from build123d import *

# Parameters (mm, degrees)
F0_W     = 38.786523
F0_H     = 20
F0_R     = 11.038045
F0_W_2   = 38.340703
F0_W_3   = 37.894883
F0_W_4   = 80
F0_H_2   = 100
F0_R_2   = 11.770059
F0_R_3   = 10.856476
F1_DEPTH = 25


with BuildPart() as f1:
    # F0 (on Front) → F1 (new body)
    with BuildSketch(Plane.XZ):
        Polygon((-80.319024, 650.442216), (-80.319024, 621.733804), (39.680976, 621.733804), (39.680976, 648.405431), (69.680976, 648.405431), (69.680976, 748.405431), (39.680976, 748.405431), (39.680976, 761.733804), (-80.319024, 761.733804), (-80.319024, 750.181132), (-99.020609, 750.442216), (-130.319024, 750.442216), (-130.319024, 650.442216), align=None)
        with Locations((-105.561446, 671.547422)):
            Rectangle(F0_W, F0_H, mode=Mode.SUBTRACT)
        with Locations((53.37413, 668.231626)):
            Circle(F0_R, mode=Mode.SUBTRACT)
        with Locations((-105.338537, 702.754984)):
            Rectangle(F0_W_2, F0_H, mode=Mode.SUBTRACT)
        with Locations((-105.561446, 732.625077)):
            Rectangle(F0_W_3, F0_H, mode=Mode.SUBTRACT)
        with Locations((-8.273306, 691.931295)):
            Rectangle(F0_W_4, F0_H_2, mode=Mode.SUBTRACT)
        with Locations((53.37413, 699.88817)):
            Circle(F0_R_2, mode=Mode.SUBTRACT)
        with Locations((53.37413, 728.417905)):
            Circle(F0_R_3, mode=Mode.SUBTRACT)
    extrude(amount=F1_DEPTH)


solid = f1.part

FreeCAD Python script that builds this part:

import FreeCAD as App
import Part
import Sketcher
Q = App.Units.Quantity

doc = App.newDocument("Part")
body = doc.addObject("PartDesign::Body", "Body")

# Sketch on XZ plane
sketch1 = body.newObject("Sketcher::SketchObject", "Sketch")
sketch1.AttachmentSupport = (doc.getObject("XZ_Plane"), [""])
sketch1.MapMode = "FlatFace"
sketch1.addGeometry(Part.LineSegment(App.Vector(-80, 650, 0), App.Vector(-80, 622, 0)), False)
sketch1.addGeometry(Part.LineSegment(App.Vector(-80, 622, 0), App.Vector(40, 622, 0)), False)
sketch1.addGeometry(Part.LineSegment(App.Vector(40, 622, 0), App.Vector(40, 648, 0)), False)
sketch1.addGeometry(Part.LineSegment(App.Vector(40, 648, 0), App.Vector(70, 648, 0)), False)
sketch1.addGeometry(Part.LineSegment(App.Vector(70, 648, 0), App.Vector(70, 748, 0)), False)
sketch1.addGeometry(Part.LineSegment(App.Vector(70, 748, 0), App.Vector(40, 748, 0)), False)
sketch1.addGeometry(Part.LineSegment(App.Vector(40, 748, 0), App.Vector(40, 762, 0)), False)
sketch1.addGeometry(Part.LineSegment(App.Vector(40, 762, 0), App.Vector(-80, 762, 0)), False)
sketch1.addGeometry(Part.LineSegment(App.Vector(-80, 762, 0), App.Vector(-80, 750, 0)), False)
sketch1.addGeometry(Part.LineSegment(App.Vector(-80, 750, 0), App.Vector(-99, 750, 0)), False)
sketch1.addGeometry(Part.LineSegment(App.Vector(-99, 750, 0), App.Vector(-130, 750, 0)), False)
sketch1.addGeometry(Part.LineSegment(App.Vector(-130, 750, 0), App.Vector(-130, 650, 0)), False)
sketch1.addGeometry(Part.LineSegment(App.Vector(-130, 650, 0), App.Vector(-80, 650, 0)), False)
sketch1.addGeometry(Part.LineSegment(App.Vector(-86, 662, 0), App.Vector(-125, 662, 0)), False)
sketch1.addGeometry(Part.LineSegment(App.Vector(-125, 662, 0), App.Vector(-125, 682, 0)), False)
sketch1.addGeometry(Part.LineSegment(App.Vector(-125, 682, 0), App.Vector(-86, 682, 0)), False)
sketch1.addGeometry(Part.LineSegment(App.Vector(-86, 682, 0), App.Vector(-86, 662, 0)), False)
sketch1.addGeometry(Part.LineSegment(App.Vector(32, 642, 0), App.Vector(-48, 642, 0)), False)
sketch1.addGeometry(Part.LineSegment(App.Vector(-48, 642, 0), App.Vector(-48, 742, 0)), False)
sketch1.addGeometry(Part.LineSegment(App.Vector(-48, 742, 0), App.Vector(32, 742, 0)), False)
sketch1.addGeometry(Part.LineSegment(App.Vector(32, 742, 0), App.Vector(32, 642, 0)), False)
sketch1.addGeometry(Part.Circle(App.Vector(53, 668, 0), App.Vector(0, 0, 1), 11), False)
sketch1.addGeometry(Part.LineSegment(App.Vector(-86, 693, 0), App.Vector(-125, 693, 0)), False)
sketch1.addGeometry(Part.LineSegment(App.Vector(-125, 693, 0), App.Vector(-125, 713, 0)), False)
sketch1.addGeometry(Part.LineSegment(App.Vector(-125, 713, 0), App.Vector(-86, 713, 0)), False)
sketch1.addGeometry(Part.LineSegment(App.Vector(-86, 713, 0), App.Vector(-86, 693, 0)), False)
sketch1.addGeometry(Part.LineSegment(App.Vector(-87, 723, 0), App.Vector(-125, 723, 0)), False)
sketch1.addGeometry(Part.LineSegment(App.Vector(-125, 723, 0), App.Vector(-125, 743, 0)), False)
sketch1.addGeometry(Part.LineSegment(App.Vector(-125, 743, 0), App.Vector(-87, 743, 0)), False)
sketch1.addGeometry(Part.LineSegment(App.Vector(-87, 743, 0), App.Vector(-87, 723, 0)), False)
sketch1.addGeometry(Part.Circle(App.Vector(53, 700, 0), App.Vector(0, 0, 1), 12), False)
sketch1.addGeometry(Part.Circle(App.Vector(53, 728, 0), App.Vector(0, 0, 1), 11), False)
sketch1.addConstraint(Sketcher.Constraint("Coincident", 0, 2, 1, 1))
sketch1.addConstraint(Sketcher.Constraint("Coincident", 1, 2, 2, 1))
sketch1.addConstraint(Sketcher.Constraint("Coincident", 2, 2, 3, 1))
sketch1.addConstraint(Sketcher.Constraint("Coincident", 3, 2, 4, 1))
sketch1.addConstraint(Sketcher.Constraint("Coincident", 4, 2, 5, 1))
sketch1.addConstraint(Sketcher.Constraint("Coincident", 5, 2, 6, 1))
sketch1.addConstraint(Sketcher.Constraint("Coincident", 6, 2, 7, 1))
sketch1.addConstraint(Sketcher.Constraint("Coincident", 7, 2, 8, 1))
sketch1.addConstraint(Sketcher.Constraint("Coincident", 8, 2, 9, 1))
sketch1.addConstraint(Sketcher.Constraint("Coincident", 9, 2, 10, 1))
sketch1.addConstraint(Sketcher.Constraint("Coincident", 10, 2, 11, 1))
sketch1.addConstraint(Sketcher.Constraint("Coincident", 11, 2, 12, 1))
sketch1.addConstraint(Sketcher.Constraint("Coincident", 12, 2, 0, 1))
sketch1.addConstraint(Sketcher.Constraint("Coincident", 13, 2, 14, 1))
sketch1.addConstraint(Sketcher.Constraint("Coincident", 14, 2, 15, 1))
sketch1.addConstraint(Sketcher.Constraint("Coincident", 15, 2, 16, 1))
sketch1.addConstraint(Sketcher.Constraint("Coincident", 16, 2, 13, 1))
sketch1.addConstraint(Sketcher.Constraint("Coincident", 17, 2, 18, 1))
sketch1.addConstraint(Sketcher.Constraint("Coincident", 18, 2, 19, 1))
sketch1.addConstraint(Sketcher.Constraint("Coincident", 19, 2, 20, 1))
sketch1.addConstraint(Sketcher.Constraint("Coincident", 20, 2, 17, 1))
sketch1.addConstraint(Sketcher.Constraint("Coincident", 22, 2, 23, 1))
sketch1.addConstraint(Sketcher.Constraint("Coincident", 23, 2, 24, 1))
sketch1.addConstraint(Sketcher.Constraint("Coincident", 24, 2, 25, 1))
sketch1.addConstraint(Sketcher.Constraint("Coincident", 25, 2, 22, 1))
sketch1.addConstraint(Sketcher.Constraint("Coincident", 26, 2, 27, 1))
sketch1.addConstraint(Sketcher.Constraint("Coincident", 27, 2, 28, 1))
sketch1.addConstraint(Sketcher.Constraint("Coincident", 28, 2, 29, 1))
sketch1.addConstraint(Sketcher.Constraint("Coincident", 29, 2, 26, 1))
sketch1.addConstraint(Sketcher.Constraint("Vertical", 0))
sketch1.addConstraint(Sketcher.Constraint("Horizontal", 1))
sketch1.addConstraint(Sketcher.Constraint("Vertical", 2))
sketch1.addConstraint(Sketcher.Constraint("Horizontal", 3))
sketch1.addConstraint(Sketcher.Constraint("Vertical", 4))
sketch1.addConstraint(Sketcher.Constraint("Horizontal", 5))
sketch1.addConstraint(Sketcher.Constraint("Vertical", 6))
sketch1.addConstraint(Sketcher.Constraint("Horizontal", 7))
sketch1.addConstraint(Sketcher.Constraint("Vertical", 8))
sketch1.addConstraint(Sketcher.Constraint("Horizontal", 10))
sketch1.addConstraint(Sketcher.Constraint("Vertical", 11))
sketch1.addConstraint(Sketcher.Constraint("Horizontal", 12))
sketch1.addConstraint(Sketcher.Constraint("Horizontal", 13))
sketch1.addConstraint(Sketcher.Constraint("Vertical", 14))
sketch1.addConstraint(Sketcher.Constraint("Horizontal", 15))
sketch1.addConstraint(Sketcher.Constraint("Vertical", 16))
sketch1.addConstraint(Sketcher.Constraint("Horizontal", 17))
sketch1.addConstraint(Sketcher.Constraint("Vertical", 18))
sketch1.addConstraint(Sketcher.Constraint("Horizontal", 19))
sketch1.addConstraint(Sketcher.Constraint("Vertical", 20))
sketch1.addConstraint(Sketcher.Constraint("Horizontal", 22))
sketch1.addConstraint(Sketcher.Constraint("Vertical", 23))
sketch1.addConstraint(Sketcher.Constraint("Horizontal", 24))
sketch1.addConstraint(Sketcher.Constraint("Vertical", 25))
sketch1.addConstraint(Sketcher.Constraint("Horizontal", 26))
sketch1.addConstraint(Sketcher.Constraint("Vertical", 27))
sketch1.addConstraint(Sketcher.Constraint("Horizontal", 28))
sketch1.addConstraint(Sketcher.Constraint("Vertical", 29))
sketch1.addConstraint(Sketcher.Constraint("Vertical", 21, 3, 30, 3))
sketch1.addConstraint(Sketcher.Constraint("Vertical", 30, 3, 31, 3))
sketch1.addConstraint(Sketcher.Constraint("Vertical", 2, 2, 5, 2))
sketch1.addConstraint(Sketcher.Constraint("Vertical", 0, 2, 7, 2))
sketch1.addConstraint(Sketcher.Constraint("Vertical", 16, 2, 24, 2))
sketch1.addConstraint(Sketcher.Constraint("Vertical", 23, 2, 26, 2))
sketch1.addConstraint(Sketcher.Constraint("Equal", 4, 11))
sketch1.addConstraint(Sketcher.Constraint("Equal", 11, 18))
sketch1.addConstraint(Sketcher.Constraint("Equal", 16, 23))
sketch1.addConstraint(Sketcher.Constraint("Equal", 25, 27))
sketch1.addConstraint(Sketcher.Constraint("DistanceX", 1, 1, 1, 2, Q("120 mm")))
sketch1.addConstraint(Sketcher.Constraint("DistanceX", 3, 1, 3, 2, Q("30 mm")))
sketch1.addConstraint(Sketcher.Constraint("DistanceX", 12, 1, 12, 2, Q("50 mm")))
sketch1.addConstraint(Sketcher.Constraint("DistanceX", 17, 2, 17, 1, Q("80 mm")))
sketch1.addConstraint(Sketcher.Constraint("DistanceY", 4, 1, 4, 2, Q("100 mm")))
sketch1.addConstraint(Sketcher.Constraint("DistanceY", 14, 1, 14, 2, Q("20 mm")))
sketch1.addConstraint(Sketcher.Constraint("DistanceY", 0, 2, 7, 2, Q("140 mm")))
sketch1.addConstraint(Sketcher.Constraint("Diameter", 21, Q("22.07609 mm")))
sketch1.addConstraint(Sketcher.Constraint("Diameter", 30, Q("23.540118 mm")))
sketch1.addConstraint(Sketcher.Constraint("Diameter", 31, Q("21.712952 mm")))
sketch1.addConstraint(Sketcher.Constraint("DistanceY", 8, 2, 8, 1, Q("11.552672 mm")))
sketch1.addConstraint(Sketcher.Constraint("DistanceY", 0, 2, 31, 3, Q("106.684101 mm")))
sketch1.addConstraint(Sketcher.Constraint("DistanceY", 5, 2, 8, 2, Q("1.775701 mm")))
sketch1.addConstraint(Sketcher.Constraint("DistanceX", 13, 2, 9, 2, Q("25.934099 mm")))
sketch1.addConstraint(Sketcher.Constraint("DistanceX", 13, 2, 17, 2, Q("76.681401 mm")))
sketch1.addConstraint(Sketcher.Constraint("DistanceX", 26, 2, 24, 2, Q("38.340702 mm")))
sketch1.addConstraint(Sketcher.Constraint("DistanceX", 10, 2, 10, 1, Q("31.298415 mm")))
sketch1.addConstraint(Sketcher.Constraint("DistanceX", 13, 2, 13, 1, Q("38.786523 mm")))
sketch1.addConstraint(Sketcher.Constraint("DistanceX", 26, 2, 26, 1, Q("37.894883 mm")))
sketch1.addConstraint(Sketcher.Constraint("DistanceY", 0, 2, 0, 1, Q("28.708412 mm")))
sketch1.addConstraint(Sketcher.Constraint("DistanceX", -1, 1, 21, 3, Q("53.37413 mm")))
sketch1.addConstraint(Sketcher.Constraint("DistanceY", -1, 1, 30, 3, Q("699.88817 mm")))
sketch1.addConstraint(Sketcher.Constraint("DistanceY", -1, 1, 2, 2, Q("648.405431 mm")))
sketch1.addConstraint(Sketcher.Constraint("DistanceX", 9, 2, -1, 1, Q("99.020609 mm")))
sketch1.addConstraint(Sketcher.Constraint("DistanceY", -1, 1, 13, 2, Q("661.547422 mm")))
sketch1.addConstraint(Sketcher.Constraint("DistanceY", 21, 3, 31, 3, Q("60.186279 mm")))
sketch1.addConstraint(Sketcher.Constraint("DistanceY", 17, 2, 12, 2, Q("8.510921 mm")))
sketch1.addConstraint(Sketcher.Constraint("DistanceY", 11, 2, 22, 2, Q("42.312768 mm")))
sketch1.addConstraint(Sketcher.Constraint("DistanceY", 26, 2, 10, 2, Q("27.817139 mm")))
pad1 = body.newObject("PartDesign::Pad", "Pad")
pad1.Profile = sketch1
pad1.Length = 25

doc.recompute()
